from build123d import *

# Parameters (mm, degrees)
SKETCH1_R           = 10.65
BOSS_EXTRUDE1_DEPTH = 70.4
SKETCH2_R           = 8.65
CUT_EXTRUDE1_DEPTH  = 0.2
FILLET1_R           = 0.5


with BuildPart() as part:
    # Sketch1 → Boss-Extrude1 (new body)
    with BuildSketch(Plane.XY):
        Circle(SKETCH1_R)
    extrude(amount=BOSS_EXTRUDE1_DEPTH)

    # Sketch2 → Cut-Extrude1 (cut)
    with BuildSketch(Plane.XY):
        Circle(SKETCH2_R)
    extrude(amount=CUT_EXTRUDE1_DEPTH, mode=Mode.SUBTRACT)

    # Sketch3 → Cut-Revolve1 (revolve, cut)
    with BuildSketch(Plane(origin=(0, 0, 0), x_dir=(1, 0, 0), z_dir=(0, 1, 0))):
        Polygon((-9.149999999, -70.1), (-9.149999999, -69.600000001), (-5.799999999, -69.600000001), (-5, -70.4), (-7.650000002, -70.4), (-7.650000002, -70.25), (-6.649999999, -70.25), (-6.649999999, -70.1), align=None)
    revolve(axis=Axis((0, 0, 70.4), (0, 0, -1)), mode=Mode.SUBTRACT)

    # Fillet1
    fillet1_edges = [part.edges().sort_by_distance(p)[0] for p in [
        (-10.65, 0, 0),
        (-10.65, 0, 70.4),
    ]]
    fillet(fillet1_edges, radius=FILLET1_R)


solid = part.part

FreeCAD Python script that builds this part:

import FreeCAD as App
import Part
import Sketcher
Q = App.Units.Quantity


def edges_at(feature, points):
    """Names of the edges that pass closest to the given points."""
    edges = feature.Shape.Edges
    near = lambda p: min(range(len(edges)), key=lambda i: edges[i].distToShape(Part.Vertex(*p))[0])
    return sorted({f"Edge{near(p) + 1}" for p in points})

doc = App.newDocument("Part")
body = doc.addObject("PartDesign::Body", "Body")

# Sketch on XY plane
sketch1 = body.newObject("Sketcher::SketchObject", "Sketch")
sketch1.AttachmentSupport = (doc.getObject("XY_Plane"), [""])
sketch1.MapMode = "FlatFace"
sketch1.addGeometry(Part.Circle(App.Vector(0, 0, 0), App.Vector(0, 0, 1), 10.65), False)
sketch1.addConstraint(Sketcher.Constraint("Coincident", 0, 3, -1, 1))
sketch1.addConstraint(Sketcher.Constraint("Diameter", 0, 21.3))
pad1 = body.newObject("PartDesign::Pad", "Pad")
pad1.Profile = sketch1
pad1.Length = 70.4

# Sketch on XY plane
sketch2 = body.newObject("Sketcher::SketchObject", "Sketch001")
sketch2.AttachmentSupport = (doc.getObject("XY_Plane"), [""])
sketch2.MapMode = "FlatFace"
sketch2.addGeometry(Part.Circle(App.Vector(0, 0, 0), App.Vector(0, 0, 1), 8.65), False)
sketch2.addConstraint(Sketcher.Constraint("Coincident", 0, 3, -1, 1))
sketch2.addConstraint(Sketcher.Constraint("Diameter", 0, 17.3))
pocket1 = body.newObject("PartDesign::Pocket", "Pocket")
pocket1.Profile = sketch2
pocket1.Length = 0.2
pocket1.Reversed = True

# Sketch on XZ plane
sketch3 = body.newObject("Sketcher::SketchObject", "Sketch002")
sketch3.AttachmentSupport = (doc.getObject("XZ_Plane"), [""])
sketch3.MapMode = "FlatFace"
sketch3.addGeometry(Part.LineSegment(App.Vector(-9.15, 69.6, 0), App.Vector(-9.15, 70.1, 0)), False)
sketch3.addGeometry(Part.LineSegment(App.Vector(-9.15, 70.1, 0), App.Vector(-6.65, 70.1, 0)), False)
sketch3.addGeometry(Part.LineSegment(App.Vector(-6.65, 70.1, 0), App.Vector(-6.65, 70.25, 0)), False)
sketch3.addGeometry(Part.LineSegment(App.Vector(-6.65, 70.25, 0), App.Vector(-7.65, 70.25, 0)), False)
sketch3.addGeometry(Part.LineSegment(App.Vector(-7.65, 70.25, 0), App.Vector(-7.65, 70.4, 0)), False)
sketch3.addGeometry(Part.LineSegment(App.Vector(-7.65, 70.4, 0), App.Vector(-5, 70.4, 0)), False)
sketch3.addGeometry(Part.LineSegment(App.Vector(-5, 70.4, 0), App.Vector(-5.8, 69.6, 0)), False)
sketch3.addGeometry(Part.LineSegment(App.Vector(-5.8, 69.6, 0), App.Vector(-9.15, 69.6, 0)), False)
sketch3.addConstraint(Sketcher.Constraint("Coincident", 0, 2, 1, 1))
sketch3.addConstraint(Sketcher.Constraint("Coincident", 1, 2, 2, 1))
sketch3.addConstraint(Sketcher.Constraint("Coincident", 2, 2, 3, 1))
sketch3.addConstraint(Sketcher.Constraint("Coincident", 3, 2, 4, 1))
sketch3.addConstraint(Sketcher.Constraint("Coincident", 4, 2, 5, 1))
sketch3.addConstraint(Sketcher.Constraint("Coincident", 5, 2, 6, 1))
sketch3.addConstraint(Sketcher.Constraint("Coincident", 6, 2, 7, 1))
sketch3.addConstraint(Sketcher.Constraint("Coincident", 7, 2, 0, 1))
sketch3.addConstraint(Sketcher.Constraint("Vertical", 0))
sketch3.addConstraint(Sketcher.Constraint("Horizontal", 1))
sketch3.addConstraint(Sketcher.Constraint("Vertical", 2))
sketch3.addConstraint(Sketcher.Constraint("Horizontal", 3))
sketch3.addConstraint(Sketcher.Constraint("Vertical", 4))
sketch3.addConstraint(Sketcher.Constraint("Horizontal", 5))
sketch3.addConstraint(Sketcher.Constraint("Horizontal", 7))
sketch3.addConstraint(Sketcher.Constraint("Equal", 2, 4))
sketch3.addConstraint(Sketcher.Constraint("DistanceX", 3, 2, 3, 1, 1.0))
sketch3.addConstraint(Sketcher.Constraint("Angle", 6, Q("-135 deg")))
sketch3.addConstraint(Sketcher.Constraint("DistanceX", 1, 1, 1, 2, 2.5))
sketch3.addConstraint(Sketcher.Constraint("DistanceY", 0, 1, 0, 2, 0.5))
sketch3.addConstraint(Sketcher.Constraint("DistanceX", 5, 2, -1, 1, 5.0))
sketch3.addConstraint(Sketcher.Constraint("DistanceX", 5, 1, 5, 2, 2.65))
sketch3.addConstraint(Sketcher.Constraint("DistanceX", 7, 2, 7, 1, 3.35))
sketch3.addConstraint(Sketcher.Constraint("DistanceY", -1, 1, 0, 2, 70.1))
groove = body.newObject("PartDesign::Groove", "Groove")
groove.Profile = sketch3
groove.ReferenceAxis = (sketch3, ["V_Axis"])
groove.Angle = 360
doc.recompute()

fillet = body.newObject("PartDesign::Fillet", "Fillet")
fillet.Base = (groove, edges_at(groove, [(-10.65, 0, 0), (-10.65, 0, 70.4)]))
fillet.Radius = 0.5

doc.recompute()
